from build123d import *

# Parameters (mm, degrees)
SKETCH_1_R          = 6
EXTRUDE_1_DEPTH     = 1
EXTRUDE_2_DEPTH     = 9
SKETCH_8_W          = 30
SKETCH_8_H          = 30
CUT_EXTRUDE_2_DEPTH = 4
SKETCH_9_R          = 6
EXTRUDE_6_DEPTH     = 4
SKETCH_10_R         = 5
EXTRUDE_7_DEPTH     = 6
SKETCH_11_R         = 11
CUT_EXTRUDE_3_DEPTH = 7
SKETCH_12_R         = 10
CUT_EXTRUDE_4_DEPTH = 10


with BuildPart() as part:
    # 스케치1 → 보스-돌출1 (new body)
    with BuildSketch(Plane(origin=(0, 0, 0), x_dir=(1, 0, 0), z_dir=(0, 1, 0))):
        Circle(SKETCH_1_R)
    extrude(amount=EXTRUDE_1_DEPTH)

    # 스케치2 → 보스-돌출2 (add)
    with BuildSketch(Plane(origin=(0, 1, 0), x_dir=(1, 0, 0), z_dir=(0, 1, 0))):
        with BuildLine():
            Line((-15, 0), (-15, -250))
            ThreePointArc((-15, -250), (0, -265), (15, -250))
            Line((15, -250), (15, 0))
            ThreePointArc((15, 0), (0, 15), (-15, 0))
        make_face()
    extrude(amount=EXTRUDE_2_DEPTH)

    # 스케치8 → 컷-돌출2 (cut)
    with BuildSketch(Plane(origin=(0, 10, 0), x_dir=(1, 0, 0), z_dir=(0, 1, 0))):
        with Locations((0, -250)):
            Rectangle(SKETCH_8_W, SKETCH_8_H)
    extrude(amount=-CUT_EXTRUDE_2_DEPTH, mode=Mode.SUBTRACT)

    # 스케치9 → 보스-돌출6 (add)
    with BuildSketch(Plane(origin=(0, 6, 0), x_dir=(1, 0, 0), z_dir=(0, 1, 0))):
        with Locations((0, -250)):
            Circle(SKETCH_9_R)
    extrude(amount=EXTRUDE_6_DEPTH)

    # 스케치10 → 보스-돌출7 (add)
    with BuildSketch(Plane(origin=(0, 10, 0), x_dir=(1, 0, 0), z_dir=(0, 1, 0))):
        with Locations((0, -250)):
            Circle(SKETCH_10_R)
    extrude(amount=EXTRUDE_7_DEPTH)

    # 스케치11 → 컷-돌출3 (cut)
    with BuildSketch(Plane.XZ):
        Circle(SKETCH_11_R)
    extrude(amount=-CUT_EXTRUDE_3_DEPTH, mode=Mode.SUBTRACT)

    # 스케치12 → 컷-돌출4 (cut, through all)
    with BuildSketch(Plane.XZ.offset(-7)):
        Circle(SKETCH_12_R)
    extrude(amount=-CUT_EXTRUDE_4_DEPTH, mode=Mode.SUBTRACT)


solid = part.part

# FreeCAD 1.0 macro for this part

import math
import FreeCAD as App
import Part
import Sketcher

V = App.Vector


def add_polygon(sketch, points):
    """Adds a closed chain of lines whose ends are joined by coincident constraints."""
    first, n = sketch.GeometryCount, len(points)
    for a, b in zip(points, points[1:] + points[:1]):
        sketch.addGeometry(Part.LineSegment(App.Vector(*a, 0), App.Vector(*b, 0)), False)
    for i in range(n):
        sketch.addConstraint(Sketcher.Constraint("Coincident", first + i, 2, first + (i + 1) % n, 1))

doc = App.newDocument("Part")
body = doc.addObject("PartDesign::Body", "Body")

# Sketch on XZ plane
sketch1 = body.newObject("Sketcher::SketchObject", "Sketch")
sketch1.AttachmentSupport = (doc.getObject("XZ_Plane"), [""])
sketch1.MapMode = "FlatFace"
sketch1.addGeometry(Part.Circle(V(0, 0, 0), V(0, 0, 1), 6), False)
sketch1.addConstraint([
    Sketcher.Constraint("Coincident", 0, 3, -1, 1),
    Sketcher.Constraint("Diameter", 0, 12.0),
])
pad1 = body.newObject("PartDesign::Pad", "Pad")
pad1.Profile = sketch1
pad1.Length = 1
pad1.Reversed = True

# Sketch on XZ plane
sketch2 = body.newObject("Sketcher::SketchObject", "Sketch001")
sketch2.AttachmentSupport = (doc.getObject("XZ_Plane"), [""])
sketch2.MapMode = "FlatFace"
sketch2.AttachmentOffset = App.Placement(V(0, 0, -1), App.Rotation())
sketch2.addGeometry([
    Part.LineSegment(V(-15, 0, 0), V(-15, 250, 0)),
    Part.ArcOfCircle(Part.Circle(V(0, 250, 0), V(0, 0, 1), 15), math.radians(0), math.radians(180)),
    Part.LineSegment(V(15, 250, 0), V(15, 0, 0)),
    Part.ArcOfCircle(Part.Circle(V(0, 0, 0), V(0, 0, 1), 15), math.radians(180), math.radians(360)),
], False)
sketch2.addConstraint([
    Sketcher.Constraint("Tangent", 0, 2, 1, 2),
    Sketcher.Constraint("Tangent", 1, 1, 2, 1),
    Sketcher.Constraint("Tangent", 2, 2, 3, 2),
    Sketcher.Constraint("Tangent", 3, 1, 0, 1),
    Sketcher.Constraint("Vertical", 0),
    Sketcher.Constraint("Vertical", 2),
    Sketcher.Constraint("Coincident", 3, 3, -1, 1),
    Sketcher.Constraint("Radius", 1, 15.0),
    Sketcher.Constraint("DistanceY", 0, 1, 0, 2, 250.0),
])
pad2 = body.newObject("PartDesign::Pad", "Pad001")
pad2.Profile = sketch2
pad2.Length = 9
pad2.Reversed = True

# Sketch on XZ plane
sketch3 = body.newObject("Sketcher::SketchObject", "Sketch002")
sketch3.AttachmentSupport = (doc.getObject("XZ_Plane"), [""])
sketch3.MapMode = "FlatFace"
sketch3.AttachmentOffset = App.Placement(V(0, 0, -10), App.Rotation())
add_polygon(sketch3, [(-15, 235), (-15, 265), (15, 265), (15, 235)])  # lines 0-3
sketch3.addConstraint([
    Sketcher.Constraint("Vertical", 0),
    Sketcher.Constraint("Horizontal", 1),
    Sketcher.Constraint("Vertical", 2),
    Sketcher.Constraint("Horizontal", 3),
    Sketcher.Constraint("Equal", 3, 0),
    Sketcher.Constraint("DistanceX", 1, 1, 1, 2, 30.0),
    Sketcher.Constraint("DistanceX", 0, 2, -1, 1, 15.0),
    Sketcher.Constraint("DistanceY", -1, 1, 0, 2, 265.0),
])
pocket1 = body.newObject("PartDesign::Pocket", "Pocket")
pocket1.Profile = sketch3
pocket1.Length = 4
pocket1.Reversed = True

# Sketch on XZ plane
sketch4 = body.newObject("Sketcher::SketchObject", "Sketch003")
sketch4.AttachmentSupport = (doc.getObject("XZ_Plane"), [""])
sketch4.MapMode = "FlatFace"
sketch4.AttachmentOffset = App.Placement(V(0, 0, -6), App.Rotation())
sketch4.addGeometry(Part.Circle(V(0, 250, 0), V(0, 0, 1), 6), False)
sketch4.addConstraint([
    Sketcher.Constraint("PointOnObject", 0, 3, -2),
    Sketcher.Constraint("Diameter", 0, 12.0),
    Sketcher.Constraint("DistanceY", -1, 1, 0, 3, 250.0),
])
pad3 = body.newObject("PartDesign::Pad", "Pad002")
pad3.Profile = sketch4
pad3.Length = 4
pad3.Reversed = True

# Sketch on XZ plane
sketch5 = body.newObject("Sketcher::SketchObject", "Sketch004")
sketch5.AttachmentSupport = (doc.getObject("XZ_Plane"), [""])
sketch5.MapMode = "FlatFace"
sketch5.AttachmentOffset = App.Placement(V(0, 0, -10), App.Rotation())
sketch5.addGeometry(Part.Circle(V(0, 250, 0), V(0, 0, 1), 5), False)
sketch5.addConstraint([
    Sketcher.Constraint("PointOnObject", 0, 3, -2),
    Sketcher.Constraint("Diameter", 0, 10.0),
    Sketcher.Constraint("DistanceY", -1, 1, 0, 3, 250.0),
])
pad4 = body.newObject("PartDesign::Pad", "Pad003")
pad4.Profile = sketch5
pad4.Length = 6
pad4.Reversed = True

# Sketch on XZ plane
sketch6 = body.newObject("Sketcher::SketchObject", "Sketch005")
sketch6.AttachmentSupport = (doc.getObject("XZ_Plane"), [""])
sketch6.MapMode = "FlatFace"
sketch6.addGeometry(Part.Circle(V(0, 0, 0), V(0, 0, 1), 11), False)
sketch6.addConstraint([
    Sketcher.Constraint("Coincident", 0, 3, -1, 1),
    Sketcher.Constraint("Diameter", 0, 22.0),
])
pocket2 = body.newObject("PartDesign::Pocket", "Pocket001")
pocket2.Profile = sketch6
pocket2.Length = 7

# Sketch on XZ plane
sketch7 = body.newObject("Sketcher::SketchObject", "Sketch006")
sketch7.AttachmentSupport = (doc.getObject("XZ_Plane"), [""])
sketch7.MapMode = "FlatFace"
sketch7.AttachmentOffset = App.Placement(V(0, 0, -7), App.Rotation())
sketch7.addGeometry(Part.Circle(V(0, 0, 0), V(0, 0, 1), 10), False)
sketch7.addConstraint([
    Sketcher.Constraint("Coincident", 0, 3, -1, 1),
    Sketcher.Constraint("Diameter", 0, 20.0),
])
pocket3 = body.newObject("PartDesign::Pocket", "Pocket002")
pocket3.Profile = sketch7
pocket3.Type = "ThroughAll"

doc.recompute()
